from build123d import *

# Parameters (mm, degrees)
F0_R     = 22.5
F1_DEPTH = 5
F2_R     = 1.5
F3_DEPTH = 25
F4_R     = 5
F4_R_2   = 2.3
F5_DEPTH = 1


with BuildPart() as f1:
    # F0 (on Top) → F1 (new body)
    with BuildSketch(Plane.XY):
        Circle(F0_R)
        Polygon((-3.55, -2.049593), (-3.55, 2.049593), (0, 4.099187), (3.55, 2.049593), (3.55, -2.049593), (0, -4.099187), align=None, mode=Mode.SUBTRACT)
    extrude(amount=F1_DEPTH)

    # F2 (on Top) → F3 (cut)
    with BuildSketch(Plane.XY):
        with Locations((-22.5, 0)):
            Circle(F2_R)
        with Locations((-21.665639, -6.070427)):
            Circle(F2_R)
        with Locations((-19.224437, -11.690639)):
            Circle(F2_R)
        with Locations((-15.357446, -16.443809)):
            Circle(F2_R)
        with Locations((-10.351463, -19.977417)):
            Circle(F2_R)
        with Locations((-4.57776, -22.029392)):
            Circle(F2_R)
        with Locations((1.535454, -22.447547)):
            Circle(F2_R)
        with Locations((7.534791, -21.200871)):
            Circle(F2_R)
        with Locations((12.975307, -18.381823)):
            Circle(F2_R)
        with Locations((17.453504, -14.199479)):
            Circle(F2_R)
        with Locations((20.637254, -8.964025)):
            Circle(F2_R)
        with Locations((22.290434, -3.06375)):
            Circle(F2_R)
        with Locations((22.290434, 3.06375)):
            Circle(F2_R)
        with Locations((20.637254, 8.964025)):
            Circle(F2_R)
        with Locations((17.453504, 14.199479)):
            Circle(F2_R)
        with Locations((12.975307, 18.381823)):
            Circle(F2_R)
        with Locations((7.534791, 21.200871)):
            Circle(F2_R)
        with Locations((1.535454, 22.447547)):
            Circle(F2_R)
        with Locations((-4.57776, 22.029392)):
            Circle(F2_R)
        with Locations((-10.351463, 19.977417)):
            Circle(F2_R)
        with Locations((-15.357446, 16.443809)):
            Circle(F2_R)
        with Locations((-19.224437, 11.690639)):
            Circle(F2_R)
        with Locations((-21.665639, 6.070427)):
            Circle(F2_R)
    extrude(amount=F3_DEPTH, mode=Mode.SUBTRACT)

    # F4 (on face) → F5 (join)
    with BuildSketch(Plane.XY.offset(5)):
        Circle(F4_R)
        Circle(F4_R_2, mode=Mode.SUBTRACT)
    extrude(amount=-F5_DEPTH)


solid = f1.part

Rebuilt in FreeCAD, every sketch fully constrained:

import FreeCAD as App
import Part
import Sketcher
Q = App.Units.Quantity


def add_polygon(sketch, points):
    """Adds a closed chain of lines whose ends are joined by coincident constraints."""
    first, n = sketch.GeometryCount, len(points)
    for a, b in zip(points, points[1:] + points[:1]):
        sketch.addGeometry(Part.LineSegment(App.Vector(*a, 0), App.Vector(*b, 0)), False)
    for i in range(n):
        sketch.addConstraint(Sketcher.Constraint("Coincident", first + i, 2, first + (i + 1) % n, 1))

doc = App.newDocument("Part")
body = doc.addObject("PartDesign::Body", "Body")

# Sketch on XY plane
sketch1 = doc.addObject("Sketcher::SketchObject", "Sketch")
body.addObject(sketch1)
sketch1.AttachmentSupport = (doc.XY_Plane, [""])
sketch1.MapMode = "FlatFace"
sketch1.addGeometry(Part.Circle(App.Vector(0, 0, 0), App.Vector(0, 0, 1), 22.5), False)  # 0
add_polygon(sketch1, [(0, -4.099187), (-3.55, -2.049593), (-3.55, 2.049593), (0, 4.099187), (3.55, 2.049593), (3.55, -2.049593)])  # lines 1-6
sketch1.addConstraint([
    Sketcher.Constraint("Vertical", 2),
    Sketcher.Constraint("Vertical", 5),
    Sketcher.Constraint("Coincident", 0, 3, -1, 1),
    Sketcher.Constraint("Symmetric", 1, 2, 4, 2, -1, 1),
    Sketcher.Constraint("Symmetric", 3, 2, 6, 2, -1, 1),
    Sketcher.Constraint("PointOnObject", 3, 2, -2),
    Sketcher.Constraint("Parallel", 3, 6),
    Sketcher.Constraint("Horizontal", 2, 2, 4, 2),
    Sketcher.Constraint("Diameter", 0, Q("45 mm")),
    Sketcher.Constraint("Angle", 1, Q("149.999993 deg")),
    Sketcher.Constraint("DistanceX", 2, 2, 4, 2, Q("7.1 mm")),
    Sketcher.Constraint("DistanceY", 2, 1, 2, 2, Q("4.099186 mm")),
])
pad1 = doc.addObject("PartDesign::Pad", "Pad")
body.addObject(pad1)
pad1.Profile = sketch1
pad1.Length = 5

# Sketch on XY plane
sketch2 = doc.addObject("Sketcher::SketchObject", "Sketch001")
body.addObject(sketch2)
sketch2.AttachmentSupport = (doc.XY_Plane, [""])
sketch2.MapMode = "FlatFace"
sketch2.addGeometry([
    Part.Circle(App.Vector(-22.5, 0, 0), App.Vector(0, 0, 1), 1.5),  # 0
    Part.Circle(App.Vector(-21.665639, -6.070427, 0), App.Vector(0, 0, 1), 1.5),  # 1
    Part.Circle(App.Vector(-19.224437, -11.690639, 0), App.Vector(0, 0, 1), 1.5),  # 2
    Part.Circle(App.Vector(-15.357446, -16.443809, 0), App.Vector(0, 0, 1), 1.5),  # 3
    Part.Circle(App.Vector(-10.351463, -19.977417, 0), App.Vector(0, 0, 1), 1.5),  # 4
    Part.Circle(App.Vector(-4.57776, -22.029392, 0), App.Vector(0, 0, 1), 1.5),  # 5
    Part.Circle(App.Vector(1.535454, -22.447547, 0), App.Vector(0, 0, 1), 1.5),  # 6
    Part.Circle(App.Vector(7.534791, -21.200871, 0), App.Vector(0, 0, 1), 1.5),  # 7
    Part.Circle(App.Vector(12.975307, -18.381823, 0), App.Vector(0, 0, 1), 1.5),  # 8
    Part.Circle(App.Vector(17.453504, -14.199479, 0), App.Vector(0, 0, 1), 1.5),  # 9
    Part.Circle(App.Vector(20.637254, -8.964025, 0), App.Vector(0, 0, 1), 1.5),  # 10
    Part.Circle(App.Vector(22.290434, -3.06375, 0), App.Vector(0, 0, 1), 1.5),  # 11
    Part.Circle(App.Vector(22.290434, 3.06375, 0), App.Vector(0, 0, 1), 1.5),  # 12
    Part.Circle(App.Vector(20.637254, 8.964025, 0), App.Vector(0, 0, 1), 1.5),  # 13
    Part.Circle(App.Vector(17.453504, 14.199479, 0), App.Vector(0, 0, 1), 1.5),  # 14
    Part.Circle(App.Vector(12.975307, 18.381823, 0), App.Vector(0, 0, 1), 1.5),  # 15
    Part.Circle(App.Vector(7.534791, 21.200871, 0), App.Vector(0, 0, 1), 1.5),  # 16
    Part.Circle(App.Vector(1.535454, 22.447547, 0), App.Vector(0, 0, 1), 1.5),  # 17
    Part.Circle(App.Vector(-4.57776, 22.029392, 0), App.Vector(0, 0, 1), 1.5),  # 18
    Part.Circle(App.Vector(-10.351463, 19.977417, 0), App.Vector(0, 0, 1), 1.5),  # 19
    Part.Circle(App.Vector(-15.357446, 16.443809, 0), App.Vector(0, 0, 1), 1.5),  # 20
    Part.Circle(App.Vector(-19.224437, 11.690639, 0), App.Vector(0, 0, 1), 1.5),  # 21
    Part.Circle(App.Vector(-21.665639, 6.070427, 0), App.Vector(0, 0, 1), 1.5),  # 22
], False)
sketch2.addConstraint([
    Sketcher.Constraint("Equal", 0, 1),
    Sketcher.Constraint("Equal", 1, 2),
    Sketcher.Constraint("Equal", 2, 3),
    Sketcher.Constraint("Equal", 3, 4),
    Sketcher.Constraint("Equal", 4, 5),
    Sketcher.Constraint("Equal", 5, 6),
    Sketcher.Constraint("Equal", 6, 7),
    Sketcher.Constraint("Equal", 7, 8),
    Sketcher.Constraint("Equal", 8, 9),
    Sketcher.Constraint("Equal", 9, 10),
    Sketcher.Constraint("Equal", 10, 11),
    Sketcher.Constraint("Equal", 11, 12),
    Sketcher.Constraint("Equal", 12, 13),
    Sketcher.Constraint("Equal", 13, 14),
    Sketcher.Constraint("Equal", 14, 15),
    Sketcher.Constraint("Equal", 15, 16),
    Sketcher.Constraint("Equal", 16, 17),
    Sketcher.Constraint("Equal", 17, 18),
    Sketcher.Constraint("Equal", 18, 19),
    Sketcher.Constraint("Equal", 19, 20),
    Sketcher.Constraint("Equal", 20, 21),
    Sketcher.Constraint("Equal", 21, 22),
    Sketcher.Constraint("Symmetric", 11, 3, 12, 3, -1),
    Sketcher.Constraint("Symmetric", 10, 3, 13, 3, -1),
    Sketcher.Constraint("Symmetric", 9, 3, 14, 3, -1),
    Sketcher.Constraint("Symmetric", 8, 3, 15, 3, -1),
    Sketcher.Constraint("Symmetric", 7, 3, 16, 3, -1),
    Sketcher.Constraint("Symmetric", 6, 3, 17, 3, -1),
    Sketcher.Constraint("Symmetric", 5, 3, 18, 3, -1),
    Sketcher.Constraint("Symmetric", 4, 3, 19, 3, -1),
    Sketcher.Constraint("Symmetric", 3, 3, 20, 3, -1),
    Sketcher.Constraint("Symmetric", 2, 3, 21, 3, -1),
    Sketcher.Constraint("Symmetric", 1, 3, 22, 3, -1),
    Sketcher.Constraint("PointOnObject", 0, 3, -1),
    Sketcher.Constraint("Diameter", 0, Q("3 mm")),
    Sketcher.Constraint("DistanceX", 0, 3, -1, 1, Q("22.5 mm")),
    Sketcher.Constraint("DistanceX", 1, 3, 2, 3, Q("2.441202 mm")),
    Sketcher.Constraint("DistanceX", 3, 3, 6, 3, Q("16.8929 mm")),
    Sketcher.Constraint("DistanceY", 8, 3, 10, 3, Q("9.417798 mm")),
    Sketcher.Constraint("DistanceX", 6, 3, 10, 3, Q("19.1018 mm")),
    Sketcher.Constraint("DistanceY", 11, 3, 12, 3, Q("6.1275 mm")),
    Sketcher.Constraint("DistanceX", 1, 3, -1, 1, Q("21.665639 mm")),
    Sketcher.Constraint("DistanceY", 2, 3, -1, 1, Q("11.690639 mm")),
    Sketcher.Constraint("DistanceY", 3, 3, -1, 1, Q("16.443809 mm")),
    Sketcher.Constraint("DistanceX", 5, 3, -1, 1, Q("4.57776 mm")),
    Sketcher.Constraint("DistanceX", -1, 1, 7, 3, Q("7.534791 mm")),
    Sketcher.Constraint("DistanceY", 7, 3, -1, 1, Q("21.200871 mm")),
    Sketcher.Constraint("DistanceY", 9, 3, -1, 1, Q("14.199479 mm")),
    Sketcher.Constraint("DistanceY", 2, 3, 1, 3, Q("5.620212 mm")),
    Sketcher.Constraint("DistanceX", 2, 3, 3, 3, Q("3.866991 mm")),
    Sketcher.Constraint("DistanceY", 4, 3, 1, 3, Q("13.90699 mm")),
    Sketcher.Constraint("DistanceY", 6, 3, 4, 3, Q("2.47013 mm")),
    Sketcher.Constraint("DistanceY", 5, 3, 7, 3, Q("0.828521 mm")),
    Sketcher.Constraint("DistanceY", 5, 3, 8, 3, Q("3.647569 mm")),
    Sketcher.Constraint("DistanceX", 4, 3, 8, 3, Q("23.32677 mm")),
    Sketcher.Constraint("DistanceX", 6, 3, 9, 3, Q("15.91805 mm")),
    Sketcher.Constraint("DistanceX", 10, 3, 11, 3, Q("1.65318 mm")),
    Sketcher.Constraint("DistanceX", 4, 3, -1, 1, Q("10.351463 mm")),
])
pocket1 = doc.addObject("PartDesign::Pocket", "Pocket")
body.addObject(pocket1)
pocket1.Profile = sketch2
pocket1.Length = 25
pocket1.Reversed = True

# Sketch on XY plane
sketch3 = doc.addObject("Sketcher::SketchObject", "Sketch002")
body.addObject(sketch3)
sketch3.AttachmentSupport = (doc.XY_Plane, [""])
sketch3.MapMode = "FlatFace"
sketch3.AttachmentOffset = App.Placement(App.Vector(0, 0, 5), App.Rotation())
sketch3.addGeometry([
    Part.Circle(App.Vector(0, 0, 0), App.Vector(0, 0, 1), 5),
    Part.Circle(App.Vector(0, 0, 0), App.Vector(0, 0, 1), 2.3),
], False)
sketch3.addConstraint([
    Sketcher.Constraint("Coincident", 0, 3, -1, 1),
    Sketcher.Constraint("Coincident", 1, 3, -1, 1),
    Sketcher.Constraint("Diameter", 0, Q("10 mm")),
    Sketcher.Constraint("Diameter", 1, Q("4.6 mm")),
])
pad2 = doc.addObject("PartDesign::Pad", "Pad001")
body.addObject(pad2)
pad2.Profile = sketch3
pad2.Length = 1
pad2.Reversed = True

doc.recompute()
